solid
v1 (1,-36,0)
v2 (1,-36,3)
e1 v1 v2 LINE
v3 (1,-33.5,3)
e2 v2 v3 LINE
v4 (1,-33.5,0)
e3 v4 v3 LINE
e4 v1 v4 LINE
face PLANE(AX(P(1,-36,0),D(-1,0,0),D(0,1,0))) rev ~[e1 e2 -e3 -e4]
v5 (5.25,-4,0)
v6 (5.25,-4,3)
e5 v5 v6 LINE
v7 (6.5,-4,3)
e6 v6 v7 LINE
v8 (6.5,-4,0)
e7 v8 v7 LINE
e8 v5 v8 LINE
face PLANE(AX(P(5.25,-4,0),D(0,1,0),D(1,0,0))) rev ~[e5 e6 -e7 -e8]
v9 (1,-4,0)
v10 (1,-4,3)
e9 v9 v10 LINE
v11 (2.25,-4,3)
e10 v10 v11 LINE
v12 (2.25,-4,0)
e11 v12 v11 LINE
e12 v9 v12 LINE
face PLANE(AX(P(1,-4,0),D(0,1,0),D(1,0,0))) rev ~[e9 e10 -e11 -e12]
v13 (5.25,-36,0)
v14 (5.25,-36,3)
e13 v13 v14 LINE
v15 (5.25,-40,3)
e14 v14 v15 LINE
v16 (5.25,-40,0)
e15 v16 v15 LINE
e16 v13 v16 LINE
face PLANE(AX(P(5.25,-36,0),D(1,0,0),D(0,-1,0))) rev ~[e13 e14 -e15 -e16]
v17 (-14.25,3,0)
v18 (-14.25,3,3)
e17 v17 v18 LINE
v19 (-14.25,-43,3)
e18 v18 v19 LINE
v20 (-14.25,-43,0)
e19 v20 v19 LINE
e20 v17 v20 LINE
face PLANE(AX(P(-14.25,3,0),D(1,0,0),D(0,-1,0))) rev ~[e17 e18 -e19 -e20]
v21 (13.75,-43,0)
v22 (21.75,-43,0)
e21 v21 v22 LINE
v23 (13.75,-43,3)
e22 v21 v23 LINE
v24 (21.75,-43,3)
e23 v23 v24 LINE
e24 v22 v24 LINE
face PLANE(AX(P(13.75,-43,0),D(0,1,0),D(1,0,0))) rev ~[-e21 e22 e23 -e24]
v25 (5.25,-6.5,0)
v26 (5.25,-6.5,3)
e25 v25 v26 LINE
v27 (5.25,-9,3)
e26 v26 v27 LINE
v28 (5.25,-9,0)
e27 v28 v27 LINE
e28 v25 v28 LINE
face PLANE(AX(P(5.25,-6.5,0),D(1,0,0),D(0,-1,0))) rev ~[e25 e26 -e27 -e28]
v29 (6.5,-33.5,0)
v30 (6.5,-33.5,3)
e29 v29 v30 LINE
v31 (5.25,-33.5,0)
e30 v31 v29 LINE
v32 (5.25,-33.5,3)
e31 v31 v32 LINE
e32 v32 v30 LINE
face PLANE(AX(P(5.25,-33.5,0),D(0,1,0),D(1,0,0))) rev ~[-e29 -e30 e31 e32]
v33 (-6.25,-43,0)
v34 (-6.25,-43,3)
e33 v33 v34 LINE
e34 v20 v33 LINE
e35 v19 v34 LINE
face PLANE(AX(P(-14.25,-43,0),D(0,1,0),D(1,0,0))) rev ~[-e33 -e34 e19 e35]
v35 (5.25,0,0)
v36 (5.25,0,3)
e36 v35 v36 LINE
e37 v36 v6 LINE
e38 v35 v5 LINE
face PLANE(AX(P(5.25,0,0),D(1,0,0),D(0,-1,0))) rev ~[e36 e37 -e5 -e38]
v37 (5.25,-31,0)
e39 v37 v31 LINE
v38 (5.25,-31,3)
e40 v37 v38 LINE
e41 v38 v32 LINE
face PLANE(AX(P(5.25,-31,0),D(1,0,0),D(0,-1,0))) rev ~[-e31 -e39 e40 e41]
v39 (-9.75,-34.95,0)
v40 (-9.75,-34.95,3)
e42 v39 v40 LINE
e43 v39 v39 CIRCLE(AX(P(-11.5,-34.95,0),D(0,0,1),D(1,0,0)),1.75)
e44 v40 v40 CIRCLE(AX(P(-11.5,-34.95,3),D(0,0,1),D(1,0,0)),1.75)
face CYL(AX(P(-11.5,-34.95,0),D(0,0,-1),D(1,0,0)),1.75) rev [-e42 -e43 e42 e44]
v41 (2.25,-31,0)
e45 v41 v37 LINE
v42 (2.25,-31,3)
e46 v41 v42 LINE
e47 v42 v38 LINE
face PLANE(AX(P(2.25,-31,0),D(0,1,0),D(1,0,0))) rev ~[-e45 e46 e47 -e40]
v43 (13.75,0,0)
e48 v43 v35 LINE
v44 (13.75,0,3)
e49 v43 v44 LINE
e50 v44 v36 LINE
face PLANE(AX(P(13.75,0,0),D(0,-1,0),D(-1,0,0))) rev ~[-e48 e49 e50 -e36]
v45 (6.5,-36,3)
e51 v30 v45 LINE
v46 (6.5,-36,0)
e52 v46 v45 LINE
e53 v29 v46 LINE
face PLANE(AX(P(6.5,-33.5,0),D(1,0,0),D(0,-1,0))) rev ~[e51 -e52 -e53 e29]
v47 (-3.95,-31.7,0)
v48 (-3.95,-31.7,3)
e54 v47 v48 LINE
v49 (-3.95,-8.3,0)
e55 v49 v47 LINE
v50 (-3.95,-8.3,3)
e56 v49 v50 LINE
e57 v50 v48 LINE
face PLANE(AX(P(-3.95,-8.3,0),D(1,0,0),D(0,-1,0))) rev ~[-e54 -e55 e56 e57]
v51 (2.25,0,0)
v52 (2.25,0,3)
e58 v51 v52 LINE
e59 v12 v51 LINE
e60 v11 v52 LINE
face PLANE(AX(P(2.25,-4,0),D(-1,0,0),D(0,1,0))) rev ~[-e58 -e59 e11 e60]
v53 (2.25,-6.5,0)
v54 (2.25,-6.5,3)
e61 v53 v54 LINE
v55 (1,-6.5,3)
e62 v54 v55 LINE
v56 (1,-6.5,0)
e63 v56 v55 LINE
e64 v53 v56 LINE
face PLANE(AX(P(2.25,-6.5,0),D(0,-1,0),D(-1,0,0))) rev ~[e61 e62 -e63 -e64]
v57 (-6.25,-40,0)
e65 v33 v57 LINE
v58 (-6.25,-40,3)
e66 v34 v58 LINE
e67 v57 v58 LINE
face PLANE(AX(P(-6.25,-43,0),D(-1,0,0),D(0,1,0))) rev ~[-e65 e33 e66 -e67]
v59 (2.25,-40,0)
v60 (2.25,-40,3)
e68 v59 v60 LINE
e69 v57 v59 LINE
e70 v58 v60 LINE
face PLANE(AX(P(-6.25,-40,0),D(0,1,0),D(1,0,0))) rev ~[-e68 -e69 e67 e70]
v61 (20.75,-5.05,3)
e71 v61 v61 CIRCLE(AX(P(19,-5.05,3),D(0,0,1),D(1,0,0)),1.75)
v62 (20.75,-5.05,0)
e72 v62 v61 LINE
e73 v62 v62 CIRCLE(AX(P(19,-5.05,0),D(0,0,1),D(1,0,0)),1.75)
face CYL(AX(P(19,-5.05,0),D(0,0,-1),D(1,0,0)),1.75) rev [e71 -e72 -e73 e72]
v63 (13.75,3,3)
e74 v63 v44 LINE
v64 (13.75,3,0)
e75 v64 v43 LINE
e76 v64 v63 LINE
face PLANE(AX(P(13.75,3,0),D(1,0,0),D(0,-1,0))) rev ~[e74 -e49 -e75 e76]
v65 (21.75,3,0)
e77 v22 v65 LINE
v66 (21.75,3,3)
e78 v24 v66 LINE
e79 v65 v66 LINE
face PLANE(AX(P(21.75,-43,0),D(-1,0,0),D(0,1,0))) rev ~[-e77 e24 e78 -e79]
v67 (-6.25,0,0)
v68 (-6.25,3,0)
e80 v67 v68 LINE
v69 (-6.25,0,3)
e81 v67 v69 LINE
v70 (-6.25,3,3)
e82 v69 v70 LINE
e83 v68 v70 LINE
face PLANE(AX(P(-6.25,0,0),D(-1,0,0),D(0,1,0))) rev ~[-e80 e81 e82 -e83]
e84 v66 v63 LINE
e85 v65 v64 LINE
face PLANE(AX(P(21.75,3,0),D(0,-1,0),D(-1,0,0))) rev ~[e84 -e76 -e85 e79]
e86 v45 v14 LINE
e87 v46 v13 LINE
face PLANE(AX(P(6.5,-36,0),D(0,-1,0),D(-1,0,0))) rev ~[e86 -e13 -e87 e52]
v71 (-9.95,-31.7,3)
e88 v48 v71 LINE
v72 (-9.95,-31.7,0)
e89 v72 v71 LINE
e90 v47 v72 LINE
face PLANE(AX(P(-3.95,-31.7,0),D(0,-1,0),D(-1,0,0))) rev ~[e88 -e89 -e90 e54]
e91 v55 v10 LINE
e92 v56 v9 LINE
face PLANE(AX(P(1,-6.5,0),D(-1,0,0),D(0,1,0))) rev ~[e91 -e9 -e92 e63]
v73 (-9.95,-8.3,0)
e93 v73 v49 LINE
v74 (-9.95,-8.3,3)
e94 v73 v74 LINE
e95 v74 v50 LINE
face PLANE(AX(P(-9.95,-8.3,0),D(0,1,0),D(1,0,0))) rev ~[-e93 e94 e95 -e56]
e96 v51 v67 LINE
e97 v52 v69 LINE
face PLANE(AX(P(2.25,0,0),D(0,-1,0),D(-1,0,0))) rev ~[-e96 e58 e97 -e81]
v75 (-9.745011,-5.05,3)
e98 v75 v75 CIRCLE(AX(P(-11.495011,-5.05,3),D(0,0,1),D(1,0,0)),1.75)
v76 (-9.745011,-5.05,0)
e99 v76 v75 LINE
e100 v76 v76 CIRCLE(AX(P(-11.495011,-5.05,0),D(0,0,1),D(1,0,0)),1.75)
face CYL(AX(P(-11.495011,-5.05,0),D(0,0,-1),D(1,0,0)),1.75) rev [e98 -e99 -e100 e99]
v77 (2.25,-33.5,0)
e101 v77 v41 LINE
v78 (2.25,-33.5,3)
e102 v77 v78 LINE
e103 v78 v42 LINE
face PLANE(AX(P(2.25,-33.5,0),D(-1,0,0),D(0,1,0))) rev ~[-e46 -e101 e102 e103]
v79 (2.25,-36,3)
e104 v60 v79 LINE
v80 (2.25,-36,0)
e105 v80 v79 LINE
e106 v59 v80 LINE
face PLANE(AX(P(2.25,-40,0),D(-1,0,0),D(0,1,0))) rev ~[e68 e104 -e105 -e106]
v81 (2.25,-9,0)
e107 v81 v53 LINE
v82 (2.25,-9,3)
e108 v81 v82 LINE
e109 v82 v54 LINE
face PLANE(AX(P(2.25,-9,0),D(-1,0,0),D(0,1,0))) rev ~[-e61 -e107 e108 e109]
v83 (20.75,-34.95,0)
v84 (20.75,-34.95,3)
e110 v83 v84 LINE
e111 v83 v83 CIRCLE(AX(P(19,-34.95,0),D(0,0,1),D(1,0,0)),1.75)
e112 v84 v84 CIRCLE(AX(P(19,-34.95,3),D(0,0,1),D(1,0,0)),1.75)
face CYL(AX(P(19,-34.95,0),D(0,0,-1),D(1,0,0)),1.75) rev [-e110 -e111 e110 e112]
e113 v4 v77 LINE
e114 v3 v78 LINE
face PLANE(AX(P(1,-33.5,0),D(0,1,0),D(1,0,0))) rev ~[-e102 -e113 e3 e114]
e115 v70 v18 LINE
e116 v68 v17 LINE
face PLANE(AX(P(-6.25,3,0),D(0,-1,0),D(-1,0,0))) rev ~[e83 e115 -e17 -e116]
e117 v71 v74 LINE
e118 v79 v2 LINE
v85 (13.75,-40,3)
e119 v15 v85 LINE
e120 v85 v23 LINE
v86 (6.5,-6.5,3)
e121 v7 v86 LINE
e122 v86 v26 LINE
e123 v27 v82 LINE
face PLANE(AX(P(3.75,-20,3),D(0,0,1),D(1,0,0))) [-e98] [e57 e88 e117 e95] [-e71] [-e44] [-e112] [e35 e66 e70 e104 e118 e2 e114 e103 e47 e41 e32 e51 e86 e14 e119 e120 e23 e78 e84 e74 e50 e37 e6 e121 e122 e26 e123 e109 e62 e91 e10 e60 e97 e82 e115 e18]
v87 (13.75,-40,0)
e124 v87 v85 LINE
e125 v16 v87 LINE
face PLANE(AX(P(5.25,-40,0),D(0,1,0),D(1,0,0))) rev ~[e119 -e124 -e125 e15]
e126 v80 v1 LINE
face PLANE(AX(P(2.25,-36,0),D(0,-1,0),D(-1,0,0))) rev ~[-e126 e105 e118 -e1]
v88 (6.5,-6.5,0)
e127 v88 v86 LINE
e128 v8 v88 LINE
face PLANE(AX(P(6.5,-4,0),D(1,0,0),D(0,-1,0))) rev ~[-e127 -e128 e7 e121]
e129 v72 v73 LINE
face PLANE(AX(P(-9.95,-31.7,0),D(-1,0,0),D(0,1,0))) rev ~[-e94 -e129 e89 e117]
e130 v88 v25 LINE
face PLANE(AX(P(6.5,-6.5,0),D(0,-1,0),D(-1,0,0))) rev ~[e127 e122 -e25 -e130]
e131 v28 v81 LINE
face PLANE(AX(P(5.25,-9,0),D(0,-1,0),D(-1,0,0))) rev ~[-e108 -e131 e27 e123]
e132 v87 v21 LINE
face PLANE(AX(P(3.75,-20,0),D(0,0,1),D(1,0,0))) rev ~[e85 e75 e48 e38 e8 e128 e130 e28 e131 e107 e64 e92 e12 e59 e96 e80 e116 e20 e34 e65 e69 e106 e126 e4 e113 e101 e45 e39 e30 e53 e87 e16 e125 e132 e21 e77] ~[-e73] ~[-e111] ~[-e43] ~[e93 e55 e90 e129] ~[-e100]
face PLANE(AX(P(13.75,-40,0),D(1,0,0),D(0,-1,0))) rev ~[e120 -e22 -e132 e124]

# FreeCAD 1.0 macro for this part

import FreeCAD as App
import Part
import Sketcher

V = App.Vector
Q = App.Units.Quantity


def add_polygon(sketch, points):
    """Adds a closed chain of lines whose ends are joined by coincident constraints."""
    first, n = sketch.GeometryCount, len(points)
    for a, b in zip(points, points[1:] + points[:1]):
        sketch.addGeometry(Part.LineSegment(App.Vector(*a, 0), App.Vector(*b, 0)), False)
    for i in range(n):
        sketch.addConstraint(Sketcher.Constraint("Coincident", first + i, 2, first + (i + 1) % n, 1))

doc = App.newDocument("Part")
params = doc.addObject("Spreadsheet::Sheet", "Params")
for row, (alias, value) in enumerate([
    ("sketch1_diameter", "3.5 mm"),
    ("sketch1_width", "8 mm"),
    ("sketch1_width2", "3 mm"),
    ("sketch1_width3", "6 mm"),
    ("sketch1_height", "46 mm"),
    ("pad1_length", "3 mm"),
], start=1):
    params.set(f"A{row}", alias)
    params.set(f"B{row}", "=" + value)
    params.setAlias(f"B{row}", alias)

body = doc.addObject("PartDesign::Body", "Body")

# Sketch on XY plane
sketch1 = doc.addObject("Sketcher::SketchObject", "Sketch")
body.addObject(sketch1)
sketch1.AttachmentSupport = (doc.XY_Plane, [""])
sketch1.MapMode = "FlatFace"
add_polygon(sketch1, [(2.2, 0), (-6.2, 0), (-6.2, 3), (-14.2, 3), (-14.2, -43), (-6.2, -43), (-6.2, -40), (2.2, -40), (2.2, -36), (1, -36), (1, -33.5), (2.2, -33.5), (2.2, -31), (5.2, -31), (5.2, -33.5), (6.5, -33.5), (6.5, -36), (5.2, -36), (5.2, -40), (13.8, -40), (13.8, -43), (21.8, -43), (21.8, 3), (13.8, 3), (13.8, 0), (5.2, 0), (5.2, -4), (6.5, -4), (6.5, -6.5), (5.2, -6.5), (5.2, -9), (2.2, -9), (2.2, -6.5), (1, -6.5), (1, -4), (2.2, -4)])  # lines 0-35
sketch1.addGeometry(Part.Circle(V(-11.5, -35, 0), V(0, 0, 1), 1.8), False)  # 36
sketch1.addGeometry(Part.Circle(V(19, -35, 0), V(0, 0, 1), 1.8), False)  # 37
add_polygon(sketch1, [(-9.9, -31.7), (-9.9, -8.3), (-4, -8.3), (-4, -31.7)])  # lines 38-41
sketch1.addGeometry(Part.Circle(V(-11.5, -5, 0), V(0, 0, 1), 1.8), False)  # 42
sketch1.addGeometry(Part.Circle(V(19, -5, 0), V(0, 0, 1), 1.8), False)  # 43
sketch1.addConstraint([
    Sketcher.Constraint("Horizontal", 0),
    Sketcher.Constraint("Vertical", 1),
    Sketcher.Constraint("Horizontal", 2),
    Sketcher.Constraint("Vertical", 3),
    Sketcher.Constraint("Horizontal", 4),
    Sketcher.Constraint("Vertical", 5),
    Sketcher.Constraint("Horizontal", 6),
    Sketcher.Constraint("Vertical", 7),
    Sketcher.Constraint("Horizontal", 8),
    Sketcher.Constraint("Vertical", 9),
    Sketcher.Constraint("Horizontal", 10),
    Sketcher.Constraint("Vertical", 11),
    Sketcher.Constraint("Horizontal", 12),
    Sketcher.Constraint("Vertical", 13),
    Sketcher.Constraint("Horizontal", 14),
    Sketcher.Constraint("Vertical", 15),
    Sketcher.Constraint("Horizontal", 16),
    Sketcher.Constraint("Vertical", 17),
    Sketcher.Constraint("Horizontal", 18),
    Sketcher.Constraint("Vertical", 19),
    Sketcher.Constraint("Horizontal", 20),
    Sketcher.Constraint("Vertical", 21),
    Sketcher.Constraint("Horizontal", 22),
    Sketcher.Constraint("Vertical", 23),
    Sketcher.Constraint("Horizontal", 24),
    Sketcher.Constraint("Vertical", 25),
    Sketcher.Constraint("Horizontal", 26),
    Sketcher.Constraint("Vertical", 27),
    Sketcher.Constraint("Horizontal", 28),
    Sketcher.Constraint("Vertical", 29),
    Sketcher.Constraint("Horizontal", 30),
    Sketcher.Constraint("Vertical", 31),
    Sketcher.Constraint("Horizontal", 32),
    Sketcher.Constraint("Vertical", 33),
    Sketcher.Constraint("Horizontal", 34),
    Sketcher.Constraint("Vertical", 35),
    Sketcher.Constraint("Vertical", 38),
    Sketcher.Constraint("Horizontal", 39),
    Sketcher.Constraint("Vertical", 40),
    Sketcher.Constraint("Horizontal", 41),
    Sketcher.Constraint("Equal", 36, 37),
    Sketcher.Constraint("Equal", 37, 42),
    Sketcher.Constraint("Equal", 42, 43),
    Sketcher.Constraint("PointOnObject", 0, 2, -1),
    Sketcher.Constraint("PointOnObject", 23, 2, -1),
    Sketcher.Constraint("Horizontal", 36, 3, 37, 3),
    Sketcher.Constraint("Horizontal", 42, 3, 43, 3),
    Sketcher.Constraint("Horizontal", 10, 2, 13, 2),
    Sketcher.Constraint("Horizontal", 8, 2, 15, 2),
    Sketcher.Constraint("Horizontal", 6, 2, 17, 2),
    Sketcher.Constraint("Horizontal", 4, 2, 19, 2),
    Sketcher.Constraint("Horizontal", 2, 2, 21, 2),
    Sketcher.Constraint("Horizontal", 28, 2, 31, 2),
    Sketcher.Constraint("Horizontal", 26, 2, 33, 2),
    Sketcher.Constraint("Vertical", 37, 3, 43, 3),
    Sketcher.Constraint("Vertical", 1, 2, 4, 2),
    Sketcher.Constraint("Vertical", 7, 2, 10, 2),
    Sketcher.Constraint("Vertical", 13, 2, 16, 2),
    Sketcher.Constraint("Vertical", 19, 2, 22, 2),
    Sketcher.Constraint("Vertical", 17, 2, 24, 2),
    Sketcher.Constraint("Vertical", 15, 2, 26, 2),
    Sketcher.Constraint("Vertical", 25, 2, 28, 2),
    Sketcher.Constraint("Vertical", 11, 2, 30, 2),
    Sketcher.Constraint("Vertical", 9, 2, 32, 2),
    Sketcher.Constraint("Vertical", 31, 2, 34, 2),
    Sketcher.Constraint("Equal", 10, 14),
    Sketcher.Constraint("Equal", 6, 18),
    Sketcher.Constraint("Equal", 4, 20),
    Sketcher.Constraint("Equal", 30, 1),
    Sketcher.Constraint("Equal", 1, 5),
    Sketcher.Constraint("Equal", 9, 11),
    Sketcher.Constraint("Equal", 17, 25),
    Sketcher.Constraint("Equal", 15, 27),
    Sketcher.Constraint("Equal", 27, 29),
    Sketcher.Constraint("Diameter", 36, Q("3.5 mm")),
    Sketcher.Constraint("DistanceX", 2, 2, 2, 1, Q("8 mm")),
    Sketcher.Constraint("DistanceX", 12, 1, 12, 2, Q("3 mm")),
    Sketcher.Constraint("DistanceX", 39, 1, 39, 2, Q("6 mm")),
    Sketcher.Constraint("DistanceY", 3, 2, 3, 1, Q("46 mm")),
    Sketcher.Constraint("DistanceY", 7, 1, 7, 2, Q("4 mm")),
    Sketcher.Constraint("DistanceX", 0, 2, 0, 1, Q("8.5 mm")),
    Sketcher.Constraint("DistanceY", 9, 1, 9, 2, Q("2.5 mm")),
    Sketcher.Constraint("DistanceY", 38, 1, 38, 2, Q("23.4 mm")),
    Sketcher.Constraint("DistanceX", -1, 1, 37, 3, Q("19 mm")),
    Sketcher.Constraint("DistanceX", -1, 1, 8, 2, Q("1 mm")),
    Sketcher.Constraint("DistanceX", 8, 2, 8, 1, Q("1.25 mm")),
    Sketcher.Constraint("DistanceX", 36, 3, -1, 1, Q("11.5 mm")),
    Sketcher.Constraint("DistanceY", 38, 2, -1, 1, Q("8.3 mm")),
    Sketcher.Constraint("DistanceY", 36, 3, 42, 3, Q("29.9 mm")),
    Sketcher.Constraint("DistanceX", 38, 2, 0, 2, Q("3.7 mm")),
    Sketcher.Constraint("DistanceY", 36, 3, -1, 1, Q("34.95 mm")),
    Sketcher.Constraint("DistanceX", 42, 3, -1, 1, Q("11.495011 mm")),
])
sketch1.setExpression("Constraints[114]", "Params.sketch1_diameter")
sketch1.setExpression("Constraints[115]", "Params.sketch1_width")
sketch1.setExpression("Constraints[116]", "Params.sketch1_width2")
sketch1.setExpression("Constraints[117]", "Params.sketch1_width3")
sketch1.setExpression("Constraints[118]", "Params.sketch1_height")
pad1 = doc.addObject("PartDesign::Pad", "Pad")
body.addObject(pad1)
pad1.Profile = sketch1
pad1.setExpression("Length", "Params.pad1_length")

doc.recompute()
